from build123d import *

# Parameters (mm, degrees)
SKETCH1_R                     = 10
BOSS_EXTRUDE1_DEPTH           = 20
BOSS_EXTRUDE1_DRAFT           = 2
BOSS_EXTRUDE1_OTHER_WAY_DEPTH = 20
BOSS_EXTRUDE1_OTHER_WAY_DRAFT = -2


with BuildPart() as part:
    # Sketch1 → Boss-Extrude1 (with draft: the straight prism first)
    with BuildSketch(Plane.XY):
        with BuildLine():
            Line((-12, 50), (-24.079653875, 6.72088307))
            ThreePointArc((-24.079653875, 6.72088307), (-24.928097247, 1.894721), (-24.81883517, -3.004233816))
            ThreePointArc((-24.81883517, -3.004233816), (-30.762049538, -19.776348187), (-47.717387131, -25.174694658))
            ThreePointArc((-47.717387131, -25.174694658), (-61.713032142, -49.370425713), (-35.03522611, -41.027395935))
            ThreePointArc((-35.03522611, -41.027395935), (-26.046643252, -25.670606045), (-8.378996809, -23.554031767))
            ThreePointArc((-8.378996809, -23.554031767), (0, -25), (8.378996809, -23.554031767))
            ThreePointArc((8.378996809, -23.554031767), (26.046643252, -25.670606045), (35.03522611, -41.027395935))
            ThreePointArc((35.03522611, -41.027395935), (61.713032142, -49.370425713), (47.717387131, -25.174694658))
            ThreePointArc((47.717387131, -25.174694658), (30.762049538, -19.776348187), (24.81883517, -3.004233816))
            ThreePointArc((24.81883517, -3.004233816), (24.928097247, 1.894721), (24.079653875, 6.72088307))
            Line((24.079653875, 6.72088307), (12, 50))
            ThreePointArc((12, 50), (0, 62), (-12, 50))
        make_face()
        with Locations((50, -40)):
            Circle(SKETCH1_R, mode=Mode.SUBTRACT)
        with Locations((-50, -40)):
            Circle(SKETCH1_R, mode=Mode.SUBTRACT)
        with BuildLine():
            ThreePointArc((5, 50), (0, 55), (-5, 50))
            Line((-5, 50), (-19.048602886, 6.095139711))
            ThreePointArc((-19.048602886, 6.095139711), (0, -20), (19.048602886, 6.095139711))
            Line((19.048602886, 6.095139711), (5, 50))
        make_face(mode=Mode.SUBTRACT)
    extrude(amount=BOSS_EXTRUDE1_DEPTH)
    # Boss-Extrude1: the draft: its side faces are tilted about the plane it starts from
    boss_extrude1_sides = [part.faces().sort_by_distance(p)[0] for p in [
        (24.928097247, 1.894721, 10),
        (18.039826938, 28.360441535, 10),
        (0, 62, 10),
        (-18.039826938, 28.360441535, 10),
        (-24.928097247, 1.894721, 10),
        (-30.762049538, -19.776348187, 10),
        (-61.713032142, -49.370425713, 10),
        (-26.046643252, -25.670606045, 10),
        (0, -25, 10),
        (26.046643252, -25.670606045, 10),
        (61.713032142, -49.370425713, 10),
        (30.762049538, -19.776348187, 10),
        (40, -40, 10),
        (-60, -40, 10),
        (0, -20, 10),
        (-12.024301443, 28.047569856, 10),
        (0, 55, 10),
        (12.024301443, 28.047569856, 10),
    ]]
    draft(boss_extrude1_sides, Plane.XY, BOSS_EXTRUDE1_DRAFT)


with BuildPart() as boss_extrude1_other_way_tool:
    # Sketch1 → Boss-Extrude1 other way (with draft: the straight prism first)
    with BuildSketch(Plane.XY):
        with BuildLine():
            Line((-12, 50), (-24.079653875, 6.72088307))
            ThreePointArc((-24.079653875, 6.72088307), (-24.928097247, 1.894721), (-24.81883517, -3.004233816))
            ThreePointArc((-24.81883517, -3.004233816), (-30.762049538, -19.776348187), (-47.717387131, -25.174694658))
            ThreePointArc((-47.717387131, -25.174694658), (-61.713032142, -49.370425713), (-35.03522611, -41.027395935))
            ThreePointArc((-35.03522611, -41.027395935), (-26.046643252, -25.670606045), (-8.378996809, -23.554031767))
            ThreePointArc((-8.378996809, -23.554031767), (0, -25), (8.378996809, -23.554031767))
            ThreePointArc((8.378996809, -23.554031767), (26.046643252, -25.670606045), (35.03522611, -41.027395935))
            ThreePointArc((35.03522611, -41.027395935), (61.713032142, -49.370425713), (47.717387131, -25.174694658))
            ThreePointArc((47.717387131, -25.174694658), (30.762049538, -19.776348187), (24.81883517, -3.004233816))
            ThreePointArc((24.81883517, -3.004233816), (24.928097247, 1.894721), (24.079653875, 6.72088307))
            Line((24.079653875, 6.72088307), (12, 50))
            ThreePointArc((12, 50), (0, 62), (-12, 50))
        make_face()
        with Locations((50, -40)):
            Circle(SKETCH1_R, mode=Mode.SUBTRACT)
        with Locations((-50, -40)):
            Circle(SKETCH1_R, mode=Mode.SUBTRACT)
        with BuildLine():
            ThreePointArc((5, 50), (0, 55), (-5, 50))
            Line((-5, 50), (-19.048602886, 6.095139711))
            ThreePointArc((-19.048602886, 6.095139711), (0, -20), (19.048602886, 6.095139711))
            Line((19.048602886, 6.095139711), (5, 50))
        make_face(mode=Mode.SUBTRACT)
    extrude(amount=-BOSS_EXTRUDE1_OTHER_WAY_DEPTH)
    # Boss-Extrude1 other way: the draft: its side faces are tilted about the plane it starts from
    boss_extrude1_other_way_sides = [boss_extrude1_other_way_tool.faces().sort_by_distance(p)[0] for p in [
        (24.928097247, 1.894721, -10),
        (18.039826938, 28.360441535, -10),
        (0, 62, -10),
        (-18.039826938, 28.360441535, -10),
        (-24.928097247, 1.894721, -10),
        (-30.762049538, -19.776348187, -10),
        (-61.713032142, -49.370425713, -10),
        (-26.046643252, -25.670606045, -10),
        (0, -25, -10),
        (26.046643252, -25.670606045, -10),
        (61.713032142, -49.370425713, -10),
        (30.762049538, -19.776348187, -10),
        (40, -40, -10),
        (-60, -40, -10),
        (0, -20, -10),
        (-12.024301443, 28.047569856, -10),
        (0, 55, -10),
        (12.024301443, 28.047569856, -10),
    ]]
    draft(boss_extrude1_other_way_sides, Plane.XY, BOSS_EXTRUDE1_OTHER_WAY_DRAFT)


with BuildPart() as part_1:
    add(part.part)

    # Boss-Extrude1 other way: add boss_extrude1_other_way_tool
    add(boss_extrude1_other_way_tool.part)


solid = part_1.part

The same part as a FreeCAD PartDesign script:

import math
import FreeCAD as App
import Part
import Sketcher
Q = App.Units.Quantity


def faces_at(feature, points):
    """Names of the faces that lie closest to the given points."""
    faces = feature.Shape.Faces
    near = lambda p: min(range(len(faces)), key=lambda i: faces[i].distToShape(Part.Vertex(*p))[0])
    return sorted({f"Face{near(p) + 1}" for p in points})

doc = App.newDocument("Part")
body = doc.addObject("PartDesign::Body", "Body")

sketch1 = body.newObject("Sketcher::SketchObject", "Sketch")
sketch1.AttachmentSupport = (doc.getObject("XY_Plane"), [""])
sketch1.MapMode = "FlatFace"
sketch1.addGeometry([
    Part.LineSegment(App.Vector(-12, 50, 0), App.Vector(-24, 7, 0)),
    Part.ArcOfCircle(Part.Circle(App.Vector(0, 0, 0), App.Vector(0, 0, 1), 25), math.radians(164), math.radians(187)),
    Part.ArcOfCircle(Part.Circle(App.Vector(-45, -5, 0), App.Vector(0, 0, 1), 20), math.radians(-99), math.radians(7)),
    Part.ArcOfCircle(Part.Circle(App.Vector(-50, -40, 0), App.Vector(0, 0, 1), 15), math.radians(81), math.radians(356)),
    Part.ArcOfCircle(Part.Circle(App.Vector(-15, -42, 0), App.Vector(0, 0, 1), 20), math.radians(70), math.radians(176)),
    Part.ArcOfCircle(Part.Circle(App.Vector(0, 0, 0), App.Vector(0, 0, 1), 25), math.radians(-110), math.radians(-70)),
    Part.ArcOfCircle(Part.Circle(App.Vector(15, -42, 0), App.Vector(0, 0, 1), 20), math.radians(4), math.radians(110)),
    Part.ArcOfCircle(Part.Circle(App.Vector(50, -40, 0), App.Vector(0, 0, 1), 15), math.radians(-176), math.radians(99)),
    Part.ArcOfCircle(Part.Circle(App.Vector(45, -5, 0), App.Vector(0, 0, 1), 20), math.radians(173), math.radians(279)),
    Part.ArcOfCircle(Part.Circle(App.Vector(0, 0, 0), App.Vector(0, 0, 1), 25), math.radians(-7), math.radians(16)),
    Part.LineSegment(App.Vector(24, 7, 0), App.Vector(12, 50, 0)),
    Part.ArcOfCircle(Part.Circle(App.Vector(0, 50, 0), App.Vector(0, 0, 1), 12), math.radians(0), math.radians(180)),
    Part.Circle(App.Vector(-50, -40, 0), App.Vector(0, 0, 1), 10),
    Part.Circle(App.Vector(50, -40, 0), App.Vector(0, 0, 1), 10),
    Part.ArcOfCircle(Part.Circle(App.Vector(0, 50, 0), App.Vector(0, 0, 1), 5), math.radians(0), math.radians(180)),
    Part.LineSegment(App.Vector(5, 50, 0), App.Vector(19, 6, 0)),
    Part.ArcOfCircle(Part.Circle(App.Vector(0, 0, 0), App.Vector(0, 0, 1), 20), math.radians(162), math.radians(378)),
    Part.LineSegment(App.Vector(-19, 6, 0), App.Vector(-5, 50, 0)),
], False)
sketch1.addConstraint([
    Sketcher.Constraint("Tangent", 0, 2, 1, 1),
    Sketcher.Constraint("Tangent", 1, 2, 2, 2),
    Sketcher.Constraint("Tangent", 2, 1, 3, 1),
    Sketcher.Constraint("Tangent", 3, 2, 4, 2),
    Sketcher.Constraint("Tangent", 4, 1, 5, 1),
    Sketcher.Constraint("Tangent", 5, 2, 6, 2),
    Sketcher.Constraint("Tangent", 6, 1, 7, 1),
    Sketcher.Constraint("Tangent", 7, 2, 8, 2),
    Sketcher.Constraint("Tangent", 8, 1, 9, 1),
    Sketcher.Constraint("Tangent", 9, 2, 10, 1),
    Sketcher.Constraint("Coincident", 10, 2, 11, 1),
    Sketcher.Constraint("Coincident", 11, 2, 0, 1),
    Sketcher.Constraint("Coincident", 14, 1, 15, 1),
    Sketcher.Constraint("Tangent", 15, 2, 16, 2),
    Sketcher.Constraint("Tangent", 16, 1, 17, 1),
    Sketcher.Constraint("Coincident", 17, 2, 14, 2),
    Sketcher.Constraint("Coincident", 1, 3, -1, 1),
    Sketcher.Constraint("Coincident", 5, 3, -1, 1),
    Sketcher.Constraint("Coincident", 9, 3, -1, 1),
    Sketcher.Constraint("Coincident", 16, 3, -1, 1),
    Sketcher.Constraint("Coincident", 12, 3, 3, 3),
    Sketcher.Constraint("Coincident", 13, 3, 7, 3),
    Sketcher.Constraint("Coincident", 14, 3, 11, 3),
    Sketcher.Constraint("Equal", 2, 4),
    Sketcher.Constraint("Equal", 1, 5),
    Sketcher.Constraint("Equal", 4, 6),
    Sketcher.Constraint("Equal", 3, 7),
    Sketcher.Constraint("Equal", 6, 8),
    Sketcher.Constraint("Equal", 5, 9),
    Sketcher.Constraint("Equal", 12, 13),
    Sketcher.Constraint("Equal", 8, 16),
    Sketcher.Constraint("Symmetric", 3, 3, 7, 3, -2),
    Sketcher.Constraint("Symmetric", 10, 2, 11, 2, -2),
    Sketcher.Constraint("Horizontal", 14, 3, 10, 2),
    Sketcher.Constraint("Horizontal", 11, 2, 14, 1),
    Sketcher.Constraint("Horizontal", 15, 2, 16, 1),
    Sketcher.Constraint("Diameter", 12, Q("20 mm")),
    Sketcher.Constraint("Radius", 1, Q("25 mm")),
    Sketcher.Constraint("Radius", 2, Q("20 mm")),
    Sketcher.Constraint("Radius", 3, Q("15 mm")),
    Sketcher.Constraint("Radius", 11, Q("12 mm")),
    Sketcher.Constraint("Radius", 14, Q("5 mm")),
    Sketcher.Constraint("DistanceX", 3, 3, -1, 1, Q("50 mm")),
    Sketcher.Constraint("DistanceY", 3, 3, -1, 1, Q("40 mm")),
    Sketcher.Constraint("DistanceY", -1, 1, 11, 3, Q("50 mm")),
])
pad1 = body.newObject("PartDesign::Pad", "Pad")
pad1.Profile = sketch1
pad1.Length = 20
doc.recompute()

draft = body.newObject("PartDesign::Draft", "Draft")
draft.Base = (pad1, faces_at(pad1, [
    (24.928, 1.895, 10),
    (18.04, 28.36, 10),
    (0, 62, 10),
    (-18.04, 28.36, 10),
    (-24.928, 1.895, 10),
    (-30.762, -19.776, 10),
    (-61.713, -49.37, 10),
    (-26.047, -25.671, 10),
    (0, -25, 10),
    (26.047, -25.671, 10),
    (61.713, -49.37, 10),
    (30.762, -19.776, 10),
    (40, -40, 10),
    (-60, -40, 10),
    (0, -20, 10),
    (-12.024, 28.048, 10),
    (0, 55, 10),
    (12.024, 28.048, 10),
]))
draft.NeutralPlane = (doc.getObject("XY_Plane"), [""])
draft.Angle = 2
draft.Reversed = False
body2 = doc.addObject("PartDesign::Body", "Body001")

sketch2 = body2.newObject("Sketcher::SketchObject", "Sketch001")
sketch2.AttachmentSupport = (doc.getObject("XY_Plane001"), [""])
sketch2.MapMode = "FlatFace"
sketch2.addGeometry([
    Part.LineSegment(App.Vector(-12, 50, 0), App.Vector(-24, 7, 0)),
    Part.ArcOfCircle(Part.Circle(App.Vector(0, 0, 0), App.Vector(0, 0, 1), 25), math.radians(164), math.radians(187)),
    Part.ArcOfCircle(Part.Circle(App.Vector(-45, -5, 0), App.Vector(0, 0, 1), 20), math.radians(-99), math.radians(7)),
    Part.ArcOfCircle(Part.Circle(App.Vector(-50, -40, 0), App.Vector(0, 0, 1), 15), math.radians(81), math.radians(356)),
    Part.ArcOfCircle(Part.Circle(App.Vector(-15, -42, 0), App.Vector(0, 0, 1), 20), math.radians(70), math.radians(176)),
    Part.ArcOfCircle(Part.Circle(App.Vector(0, 0, 0), App.Vector(0, 0, 1), 25), math.radians(-110), math.radians(-70)),
    Part.ArcOfCircle(Part.Circle(App.Vector(15, -42, 0), App.Vector(0, 0, 1), 20), math.radians(4), math.radians(110)),
    Part.ArcOfCircle(Part.Circle(App.Vector(50, -40, 0), App.Vector(0, 0, 1), 15), math.radians(-176), math.radians(99)),
    Part.ArcOfCircle(Part.Circle(App.Vector(45, -5, 0), App.Vector(0, 0, 1), 20), math.radians(173), math.radians(279)),
    Part.ArcOfCircle(Part.Circle(App.Vector(0, 0, 0), App.Vector(0, 0, 1), 25), math.radians(-7), math.radians(16)),
    Part.LineSegment(App.Vector(24, 7, 0), App.Vector(12, 50, 0)),
    Part.ArcOfCircle(Part.Circle(App.Vector(0, 50, 0), App.Vector(0, 0, 1), 12), math.radians(0), math.radians(180)),
    Part.Circle(App.Vector(-50, -40, 0), App.Vector(0, 0, 1), 10),
    Part.Circle(App.Vector(50, -40, 0), App.Vector(0, 0, 1), 10),
    Part.ArcOfCircle(Part.Circle(App.Vector(0, 50, 0), App.Vector(0, 0, 1), 5), math.radians(0), math.radians(180)),
    Part.LineSegment(App.Vector(5, 50, 0), App.Vector(19, 6, 0)),
    Part.ArcOfCircle(Part.Circle(App.Vector(0, 0, 0), App.Vector(0, 0, 1), 20), math.radians(162), math.radians(378)),
    Part.LineSegment(App.Vector(-19, 6, 0), App.Vector(-5, 50, 0)),
], False)
sketch2.addConstraint([
    Sketcher.Constraint("Tangent", 0, 2, 1, 1),
    Sketcher.Constraint("Tangent", 1, 2, 2, 2),
    Sketcher.Constraint("Tangent", 2, 1, 3, 1),
    Sketcher.Constraint("Tangent", 3, 2, 4, 2),
    Sketcher.Constraint("Tangent", 4, 1, 5, 1),
    Sketcher.Constraint("Tangent", 5, 2, 6, 2),
    Sketcher.Constraint("Tangent", 6, 1, 7, 1),
    Sketcher.Constraint("Tangent", 7, 2, 8, 2),
    Sketcher.Constraint("Tangent", 8, 1, 9, 1),
    Sketcher.Constraint("Tangent", 9, 2, 10, 1),
    Sketcher.Constraint("Coincident", 10, 2, 11, 1),
    Sketcher.Constraint("Coincident", 11, 2, 0, 1),
    Sketcher.Constraint("Coincident", 14, 1, 15, 1),
    Sketcher.Constraint("Tangent", 15, 2, 16, 2),
    Sketcher.Constraint("Tangent", 16, 1, 17, 1),
    Sketcher.Constraint("Coincident", 17, 2, 14, 2),
    Sketcher.Constraint("Coincident", 1, 3, -1, 1),
    Sketcher.Constraint("Coincident", 5, 3, -1, 1),
    Sketcher.Constraint("Coincident", 9, 3, -1, 1),
    Sketcher.Constraint("Coincident", 16, 3, -1, 1),
    Sketcher.Constraint("Coincident", 12, 3, 3, 3),
    Sketcher.Constraint("Coincident", 13, 3, 7, 3),
    Sketcher.Constraint("Coincident", 14, 3, 11, 3),
    Sketcher.Constraint("Equal", 2, 4),
    Sketcher.Constraint("Equal", 1, 5),
    Sketcher.Constraint("Equal", 4, 6),
    Sketcher.Constraint("Equal", 3, 7),
    Sketcher.Constraint("Equal", 6, 8),
    Sketcher.Constraint("Equal", 5, 9),
    Sketcher.Constraint("Equal", 12, 13),
    Sketcher.Constraint("Equal", 8, 16),
    Sketcher.Constraint("Symmetric", 3, 3, 7, 3, -2),
    Sketcher.Constraint("Symmetric", 10, 2, 11, 2, -2),
    Sketcher.Constraint("Horizontal", 14, 3, 10, 2),
    Sketcher.Constraint("Horizontal", 11, 2, 14, 1),
    Sketcher.Constraint("Horizontal", 15, 2, 16, 1),
    Sketcher.Constraint("Diameter", 12, Q("20 mm")),
    Sketcher.Constraint("Radius", 1, Q("25 mm")),
    Sketcher.Constraint("Radius", 2, Q("20 mm")),
    Sketcher.Constraint("Radius", 3, Q("15 mm")),
    Sketcher.Constraint("Radius", 11, Q("12 mm")),
    Sketcher.Constraint("Radius", 14, Q("5 mm")),
    Sketcher.Constraint("DistanceX", 3, 3, -1, 1, Q("50 mm")),
    Sketcher.Constraint("DistanceY", 3, 3, -1, 1, Q("40 mm")),
    Sketcher.Constraint("DistanceY", -1, 1, 11, 3, Q("50 mm")),
])
pad2 = body2.newObject("PartDesign::Pad", "Pad001")
pad2.Profile = sketch2
pad2.Length = 20
pad2.Reversed = True
doc.recompute()

draft2 = body2.newObject("PartDesign::Draft", "Draft001")
draft2.Base = (pad2, faces_at(pad2, [
    (24.928, 1.895, -10),
    (18.04, 28.36, -10),
    (0, 62, -10),
    (-18.04, 28.36, -10),
    (-24.928, 1.895, -10),
    (-30.762, -19.776, -10),
    (-61.713, -49.37, -10),
    (-26.047, -25.671, -10),
    (0, -25, -10),
    (26.047, -25.671, -10),
    (61.713, -49.37, -10),
    (30.762, -19.776, -10),
    (40, -40, -10),
    (-60, -40, -10),
    (0, -20, -10),
    (-12.024, 28.048, -10),
    (0, 55, -10),
    (12.024, 28.048, -10),
]))
draft2.NeutralPlane = (doc.getObject("XY_Plane001"), [""])
draft2.Angle = 2
draft2.Reversed = True
doc.recompute()

boolean = body.newObject("PartDesign::Boolean", "Boolean")
boolean.Type = "Fuse"
boolean.addObjects([body2])

doc.recompute()
